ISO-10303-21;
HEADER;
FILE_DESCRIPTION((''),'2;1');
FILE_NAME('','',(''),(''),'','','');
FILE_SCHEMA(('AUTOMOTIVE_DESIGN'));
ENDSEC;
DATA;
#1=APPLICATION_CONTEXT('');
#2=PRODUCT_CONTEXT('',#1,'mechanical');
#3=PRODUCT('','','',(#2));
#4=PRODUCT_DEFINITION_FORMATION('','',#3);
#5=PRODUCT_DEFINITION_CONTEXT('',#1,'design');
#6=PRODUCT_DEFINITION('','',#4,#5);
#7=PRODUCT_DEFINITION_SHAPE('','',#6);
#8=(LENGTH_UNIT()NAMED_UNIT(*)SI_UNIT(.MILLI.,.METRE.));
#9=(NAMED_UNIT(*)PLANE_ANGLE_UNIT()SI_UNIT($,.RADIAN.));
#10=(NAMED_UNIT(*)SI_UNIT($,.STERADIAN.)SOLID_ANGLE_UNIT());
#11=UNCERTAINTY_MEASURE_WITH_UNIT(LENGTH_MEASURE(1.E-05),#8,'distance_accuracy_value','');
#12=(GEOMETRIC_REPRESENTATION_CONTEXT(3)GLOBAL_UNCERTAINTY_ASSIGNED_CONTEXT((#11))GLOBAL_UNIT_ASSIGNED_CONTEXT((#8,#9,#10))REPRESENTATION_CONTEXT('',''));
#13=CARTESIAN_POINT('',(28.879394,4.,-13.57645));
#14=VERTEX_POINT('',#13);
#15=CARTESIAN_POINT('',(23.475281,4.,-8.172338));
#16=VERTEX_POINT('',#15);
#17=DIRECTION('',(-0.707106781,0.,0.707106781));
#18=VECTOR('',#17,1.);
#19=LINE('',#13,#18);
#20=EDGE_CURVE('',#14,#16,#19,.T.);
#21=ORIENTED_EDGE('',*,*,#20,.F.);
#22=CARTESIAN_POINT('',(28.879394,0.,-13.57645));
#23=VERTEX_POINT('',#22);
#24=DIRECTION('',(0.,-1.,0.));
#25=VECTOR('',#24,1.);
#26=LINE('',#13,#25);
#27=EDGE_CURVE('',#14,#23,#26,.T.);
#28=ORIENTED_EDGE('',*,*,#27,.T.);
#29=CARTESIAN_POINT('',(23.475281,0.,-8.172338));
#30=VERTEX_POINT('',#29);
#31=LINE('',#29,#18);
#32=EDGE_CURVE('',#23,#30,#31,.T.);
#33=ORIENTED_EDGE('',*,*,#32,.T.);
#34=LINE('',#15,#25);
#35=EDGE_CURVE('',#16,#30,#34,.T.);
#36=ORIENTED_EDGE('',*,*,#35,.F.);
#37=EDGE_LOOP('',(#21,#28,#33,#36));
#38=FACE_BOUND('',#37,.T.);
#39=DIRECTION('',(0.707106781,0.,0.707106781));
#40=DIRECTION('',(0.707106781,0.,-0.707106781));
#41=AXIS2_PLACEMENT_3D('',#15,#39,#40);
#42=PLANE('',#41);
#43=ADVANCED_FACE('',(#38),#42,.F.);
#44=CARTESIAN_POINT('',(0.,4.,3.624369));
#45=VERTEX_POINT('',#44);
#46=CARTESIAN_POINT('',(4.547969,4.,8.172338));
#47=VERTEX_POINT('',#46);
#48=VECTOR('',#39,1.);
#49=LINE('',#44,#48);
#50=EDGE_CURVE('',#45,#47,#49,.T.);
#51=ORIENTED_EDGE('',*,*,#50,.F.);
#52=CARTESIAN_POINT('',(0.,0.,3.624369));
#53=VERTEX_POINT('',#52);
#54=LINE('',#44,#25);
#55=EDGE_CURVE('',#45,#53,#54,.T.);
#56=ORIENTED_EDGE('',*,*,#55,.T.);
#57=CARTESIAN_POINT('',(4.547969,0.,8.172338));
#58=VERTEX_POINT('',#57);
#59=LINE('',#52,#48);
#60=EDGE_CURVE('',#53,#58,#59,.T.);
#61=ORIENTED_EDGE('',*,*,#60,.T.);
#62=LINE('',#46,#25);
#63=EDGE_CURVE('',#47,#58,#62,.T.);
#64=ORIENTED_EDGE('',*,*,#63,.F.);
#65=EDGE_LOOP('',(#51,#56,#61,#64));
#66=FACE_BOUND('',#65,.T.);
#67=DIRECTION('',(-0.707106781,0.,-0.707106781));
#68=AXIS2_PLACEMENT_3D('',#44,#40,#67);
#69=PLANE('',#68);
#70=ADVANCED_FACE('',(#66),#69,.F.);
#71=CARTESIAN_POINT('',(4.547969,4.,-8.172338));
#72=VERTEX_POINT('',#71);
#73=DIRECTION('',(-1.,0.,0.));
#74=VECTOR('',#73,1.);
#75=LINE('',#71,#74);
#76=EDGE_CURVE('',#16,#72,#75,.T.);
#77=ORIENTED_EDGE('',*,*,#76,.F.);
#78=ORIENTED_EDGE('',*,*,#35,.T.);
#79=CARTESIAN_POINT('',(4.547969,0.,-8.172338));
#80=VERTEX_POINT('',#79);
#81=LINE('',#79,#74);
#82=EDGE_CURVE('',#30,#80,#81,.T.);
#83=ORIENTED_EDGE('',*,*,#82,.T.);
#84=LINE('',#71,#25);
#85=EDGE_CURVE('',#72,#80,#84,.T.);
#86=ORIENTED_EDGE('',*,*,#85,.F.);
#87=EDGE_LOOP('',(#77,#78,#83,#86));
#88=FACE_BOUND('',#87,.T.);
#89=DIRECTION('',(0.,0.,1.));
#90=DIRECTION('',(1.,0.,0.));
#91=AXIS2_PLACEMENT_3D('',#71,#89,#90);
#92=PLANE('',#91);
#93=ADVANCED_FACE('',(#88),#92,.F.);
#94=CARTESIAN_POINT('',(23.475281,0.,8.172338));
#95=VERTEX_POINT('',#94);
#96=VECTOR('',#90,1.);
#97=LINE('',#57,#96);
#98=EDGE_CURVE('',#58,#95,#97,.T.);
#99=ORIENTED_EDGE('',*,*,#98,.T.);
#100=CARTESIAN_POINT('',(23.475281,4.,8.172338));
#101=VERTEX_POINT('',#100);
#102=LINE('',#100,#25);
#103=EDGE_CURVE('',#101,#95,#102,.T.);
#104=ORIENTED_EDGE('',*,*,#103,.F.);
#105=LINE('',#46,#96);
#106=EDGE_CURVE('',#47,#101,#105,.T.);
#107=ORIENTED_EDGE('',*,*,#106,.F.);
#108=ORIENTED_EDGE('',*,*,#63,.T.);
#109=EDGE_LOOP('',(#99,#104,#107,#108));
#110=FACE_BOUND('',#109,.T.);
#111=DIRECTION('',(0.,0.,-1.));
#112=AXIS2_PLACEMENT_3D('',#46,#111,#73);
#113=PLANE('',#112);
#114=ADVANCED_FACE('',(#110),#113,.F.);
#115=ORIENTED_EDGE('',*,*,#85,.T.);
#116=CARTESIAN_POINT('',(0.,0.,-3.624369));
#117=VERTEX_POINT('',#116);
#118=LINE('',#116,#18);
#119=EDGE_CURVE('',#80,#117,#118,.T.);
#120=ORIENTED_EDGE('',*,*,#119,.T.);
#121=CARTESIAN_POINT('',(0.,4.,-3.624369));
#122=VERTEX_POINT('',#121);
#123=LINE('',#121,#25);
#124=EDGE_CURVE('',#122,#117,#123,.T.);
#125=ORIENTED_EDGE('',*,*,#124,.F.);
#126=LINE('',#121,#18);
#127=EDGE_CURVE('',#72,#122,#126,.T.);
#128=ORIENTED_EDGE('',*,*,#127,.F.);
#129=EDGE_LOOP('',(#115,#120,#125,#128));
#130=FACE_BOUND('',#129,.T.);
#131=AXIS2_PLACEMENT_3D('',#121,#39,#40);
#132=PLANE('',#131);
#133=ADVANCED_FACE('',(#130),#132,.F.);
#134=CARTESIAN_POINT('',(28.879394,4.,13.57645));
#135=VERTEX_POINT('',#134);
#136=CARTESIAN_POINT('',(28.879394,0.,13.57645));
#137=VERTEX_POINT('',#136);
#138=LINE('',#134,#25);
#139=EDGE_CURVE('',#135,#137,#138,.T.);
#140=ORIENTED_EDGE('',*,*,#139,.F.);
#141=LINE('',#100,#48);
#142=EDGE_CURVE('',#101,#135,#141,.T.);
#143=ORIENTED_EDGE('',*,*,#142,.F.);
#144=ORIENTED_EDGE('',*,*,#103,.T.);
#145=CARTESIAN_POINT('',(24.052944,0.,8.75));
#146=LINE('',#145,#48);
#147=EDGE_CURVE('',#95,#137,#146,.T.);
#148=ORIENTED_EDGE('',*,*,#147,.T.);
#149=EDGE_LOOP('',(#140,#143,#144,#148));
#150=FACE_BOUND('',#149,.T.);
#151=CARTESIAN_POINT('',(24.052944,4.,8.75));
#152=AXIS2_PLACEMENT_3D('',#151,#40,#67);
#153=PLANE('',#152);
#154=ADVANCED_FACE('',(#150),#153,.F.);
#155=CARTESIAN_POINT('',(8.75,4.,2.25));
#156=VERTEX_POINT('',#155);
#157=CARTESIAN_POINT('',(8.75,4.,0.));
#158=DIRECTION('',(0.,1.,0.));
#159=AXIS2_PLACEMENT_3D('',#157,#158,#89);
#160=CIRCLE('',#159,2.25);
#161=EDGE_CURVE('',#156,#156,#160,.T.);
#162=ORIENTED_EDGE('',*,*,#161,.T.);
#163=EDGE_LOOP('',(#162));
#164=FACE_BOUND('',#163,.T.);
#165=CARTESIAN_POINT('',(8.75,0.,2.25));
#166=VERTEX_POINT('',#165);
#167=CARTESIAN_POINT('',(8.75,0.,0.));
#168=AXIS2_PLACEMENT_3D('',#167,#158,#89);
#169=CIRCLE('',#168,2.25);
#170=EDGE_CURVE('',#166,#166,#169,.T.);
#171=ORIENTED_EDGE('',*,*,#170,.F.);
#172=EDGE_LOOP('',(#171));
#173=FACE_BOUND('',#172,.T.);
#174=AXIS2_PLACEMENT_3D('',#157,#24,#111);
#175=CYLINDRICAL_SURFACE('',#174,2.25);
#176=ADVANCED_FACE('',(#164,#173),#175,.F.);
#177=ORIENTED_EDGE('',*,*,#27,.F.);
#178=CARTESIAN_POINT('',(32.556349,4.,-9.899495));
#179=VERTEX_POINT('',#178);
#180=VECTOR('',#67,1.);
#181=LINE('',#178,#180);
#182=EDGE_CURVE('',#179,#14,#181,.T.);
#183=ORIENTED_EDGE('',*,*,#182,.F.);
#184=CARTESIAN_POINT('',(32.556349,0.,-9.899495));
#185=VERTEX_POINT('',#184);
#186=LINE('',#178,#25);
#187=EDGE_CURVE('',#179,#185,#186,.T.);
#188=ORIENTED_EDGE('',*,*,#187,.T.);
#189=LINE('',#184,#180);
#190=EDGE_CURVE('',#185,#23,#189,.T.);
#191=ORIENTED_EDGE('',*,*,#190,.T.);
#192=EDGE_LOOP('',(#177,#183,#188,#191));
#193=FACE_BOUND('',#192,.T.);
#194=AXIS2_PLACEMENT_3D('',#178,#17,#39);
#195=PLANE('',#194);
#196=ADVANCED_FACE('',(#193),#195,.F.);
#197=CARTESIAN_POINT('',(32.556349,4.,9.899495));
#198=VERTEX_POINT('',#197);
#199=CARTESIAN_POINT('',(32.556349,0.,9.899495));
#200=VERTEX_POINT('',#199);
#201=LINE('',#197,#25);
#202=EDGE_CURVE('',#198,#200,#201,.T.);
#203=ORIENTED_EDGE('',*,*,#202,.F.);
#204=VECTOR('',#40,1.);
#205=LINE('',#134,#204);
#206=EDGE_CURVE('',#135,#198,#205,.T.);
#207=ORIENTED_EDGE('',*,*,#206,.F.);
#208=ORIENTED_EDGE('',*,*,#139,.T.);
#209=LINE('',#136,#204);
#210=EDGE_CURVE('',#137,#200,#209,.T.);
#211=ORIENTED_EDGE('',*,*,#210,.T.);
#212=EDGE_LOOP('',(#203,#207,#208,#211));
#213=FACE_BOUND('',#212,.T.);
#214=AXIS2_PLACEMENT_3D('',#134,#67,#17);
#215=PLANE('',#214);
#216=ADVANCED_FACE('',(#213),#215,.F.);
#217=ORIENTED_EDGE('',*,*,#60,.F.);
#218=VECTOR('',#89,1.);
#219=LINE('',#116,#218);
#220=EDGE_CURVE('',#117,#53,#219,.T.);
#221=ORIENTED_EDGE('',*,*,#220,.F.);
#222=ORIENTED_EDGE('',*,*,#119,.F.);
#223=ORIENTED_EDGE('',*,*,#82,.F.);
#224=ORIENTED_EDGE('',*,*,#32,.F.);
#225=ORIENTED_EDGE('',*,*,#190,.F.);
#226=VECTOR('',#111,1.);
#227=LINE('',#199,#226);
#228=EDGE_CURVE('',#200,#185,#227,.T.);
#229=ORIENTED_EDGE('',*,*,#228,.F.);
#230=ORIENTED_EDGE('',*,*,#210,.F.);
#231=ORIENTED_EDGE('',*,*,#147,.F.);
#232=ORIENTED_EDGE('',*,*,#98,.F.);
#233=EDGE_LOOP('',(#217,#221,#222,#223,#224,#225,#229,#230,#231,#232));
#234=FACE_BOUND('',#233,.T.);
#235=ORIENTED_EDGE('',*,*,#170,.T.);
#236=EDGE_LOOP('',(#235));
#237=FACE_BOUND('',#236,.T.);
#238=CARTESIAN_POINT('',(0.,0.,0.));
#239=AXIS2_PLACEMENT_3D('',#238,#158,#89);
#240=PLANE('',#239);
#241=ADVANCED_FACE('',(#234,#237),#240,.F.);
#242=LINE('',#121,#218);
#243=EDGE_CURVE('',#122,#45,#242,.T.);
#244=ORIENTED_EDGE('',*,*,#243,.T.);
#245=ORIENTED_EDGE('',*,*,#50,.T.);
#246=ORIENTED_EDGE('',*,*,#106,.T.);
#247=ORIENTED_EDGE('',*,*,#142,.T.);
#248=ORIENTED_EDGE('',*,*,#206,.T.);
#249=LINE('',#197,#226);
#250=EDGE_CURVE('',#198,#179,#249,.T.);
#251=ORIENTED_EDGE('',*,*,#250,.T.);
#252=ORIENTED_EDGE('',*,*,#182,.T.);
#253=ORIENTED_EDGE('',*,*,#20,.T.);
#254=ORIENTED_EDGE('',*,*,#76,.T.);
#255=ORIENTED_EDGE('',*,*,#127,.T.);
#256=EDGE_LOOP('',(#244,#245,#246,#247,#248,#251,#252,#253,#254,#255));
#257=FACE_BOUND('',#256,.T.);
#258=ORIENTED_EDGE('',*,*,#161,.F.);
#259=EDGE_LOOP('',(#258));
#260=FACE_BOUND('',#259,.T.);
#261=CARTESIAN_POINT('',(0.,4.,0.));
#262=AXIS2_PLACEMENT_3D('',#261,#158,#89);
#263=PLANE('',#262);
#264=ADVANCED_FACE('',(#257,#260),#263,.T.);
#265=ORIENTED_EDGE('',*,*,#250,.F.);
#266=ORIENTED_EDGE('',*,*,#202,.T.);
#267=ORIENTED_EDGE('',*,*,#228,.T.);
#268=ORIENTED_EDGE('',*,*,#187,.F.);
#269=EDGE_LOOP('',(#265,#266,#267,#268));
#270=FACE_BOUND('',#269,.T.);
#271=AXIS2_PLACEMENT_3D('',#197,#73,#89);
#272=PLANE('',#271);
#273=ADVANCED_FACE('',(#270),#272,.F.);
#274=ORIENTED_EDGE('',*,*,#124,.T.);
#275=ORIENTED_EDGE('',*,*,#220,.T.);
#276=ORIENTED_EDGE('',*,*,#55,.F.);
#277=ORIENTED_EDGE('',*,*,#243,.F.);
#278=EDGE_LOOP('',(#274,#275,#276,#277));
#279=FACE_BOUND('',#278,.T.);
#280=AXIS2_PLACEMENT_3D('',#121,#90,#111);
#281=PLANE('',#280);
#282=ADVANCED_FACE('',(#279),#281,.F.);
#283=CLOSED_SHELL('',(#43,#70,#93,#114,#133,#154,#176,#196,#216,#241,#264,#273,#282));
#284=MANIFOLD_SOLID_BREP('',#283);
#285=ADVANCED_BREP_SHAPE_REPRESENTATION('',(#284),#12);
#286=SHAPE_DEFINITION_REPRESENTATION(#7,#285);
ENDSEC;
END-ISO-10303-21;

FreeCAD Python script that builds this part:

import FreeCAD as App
import Part
import Sketcher
from FreeCAD import Vector

doc = App.newDocument("Part")
body = doc.addObject("PartDesign::Body", "Body")

# Sketch on XZ plane
sketch1 = doc.addObject("Sketcher::SketchObject", "Sketch")
body.addObject(sketch1)
sketch1.AttachmentSupport = (doc.XZ_Plane, [""])
sketch1.MapMode = "FlatFace"
sketch1.addGeometry([
    Part.LineSegment(Vector(0, -3.6, 0), Vector(0, 3.6, 0)),  # 0
    Part.LineSegment(Vector(0, 3.6, 0), Vector(4.5, 8.2, 0)),  # 1
    Part.LineSegment(Vector(4.5, 8.2, 0), Vector(23.5, 8.2, 0)),  # 2
    Part.LineSegment(Vector(23.5, 8.2, 0), Vector(28.9, 13.6, 0)),  # 3
    Part.LineSegment(Vector(28.9, 13.6, 0), Vector(32.6, 9.9, 0)),  # 4
    Part.LineSegment(Vector(32.6, 9.9, 0), Vector(32.6, -9.9, 0)),  # 5
    Part.LineSegment(Vector(32.6, -9.9, 0), Vector(28.9, -13.6, 0)),  # 6
    Part.LineSegment(Vector(28.9, -13.6, 0), Vector(23.5, -8.2, 0)),  # 7
    Part.LineSegment(Vector(23.5, -8.2, 0), Vector(4.5, -8.2, 0)),  # 8
    Part.LineSegment(Vector(4.5, -8.2, 0), Vector(0, -3.6, 0)),  # 9
    Part.Circle(Vector(8.8, 0, 0), Vector(0, 0, 1), 2.2),  # 10
], False)
sketch1.addConstraint([
    Sketcher.Constraint("Coincident", 0, 2, 1, 1),
    Sketcher.Constraint("Coincident", 1, 2, 2, 1),
    Sketcher.Constraint("Coincident", 2, 2, 3, 1),
    Sketcher.Constraint("Coincident", 3, 2, 4, 1),
    Sketcher.Constraint("Coincident", 4, 2, 5, 1),
    Sketcher.Constraint("Coincident", 5, 2, 6, 1),
    Sketcher.Constraint("Coincident", 6, 2, 7, 1),
    Sketcher.Constraint("Coincident", 7, 2, 8, 1),
    Sketcher.Constraint("Coincident", 8, 2, 9, 1),
    Sketcher.Constraint("Coincident", 9, 2, 0, 1),
    Sketcher.Constraint("Vertical", 0),
    Sketcher.Constraint("Horizontal", 2),
    Sketcher.Constraint("Vertical", 5),
    Sketcher.Constraint("Horizontal", 8),
    Sketcher.Constraint("Symmetric", 0, 2, 9, 2, -1, 1),
    Sketcher.Constraint("Symmetric", 3, 2, 6, 2, -1),
    Sketcher.Constraint("Symmetric", 2, 2, 7, 2, -1),
    Sketcher.Constraint("PointOnObject", 10, 3, -1),
    Sketcher.Constraint("Parallel", 1, 3),
    Sketcher.Constraint("Perpendicular", 3, 4),
    Sketcher.Constraint("Perpendicular", 4, 6),
    Sketcher.Constraint("Perpendicular", 6, 7),
    Sketcher.Constraint("Parallel", 7, 9),
    Sketcher.Constraint("Diameter", 10, 4.5),
    Sketcher.Constraint("Distance", 4, 5.2),
    Sketcher.Constraint("DistanceX", -1, 1, 10, 3, 8.75),
    Sketcher.Constraint("Distance", 1, 6.431799),
    Sketcher.Constraint("DistanceY", 5, 2, 5, 1, 19.79899),
    Sketcher.Constraint("Distance", 3, 7.642569),
    Sketcher.Constraint("DistanceX", 2, 1, 2, 2, 18.927312),
])
pad1 = doc.addObject("PartDesign::Pad", "Pad")
body.addObject(pad1)
pad1.Profile = sketch1
pad1.Length = 4
pad1.Reversed = True

doc.recompute()
